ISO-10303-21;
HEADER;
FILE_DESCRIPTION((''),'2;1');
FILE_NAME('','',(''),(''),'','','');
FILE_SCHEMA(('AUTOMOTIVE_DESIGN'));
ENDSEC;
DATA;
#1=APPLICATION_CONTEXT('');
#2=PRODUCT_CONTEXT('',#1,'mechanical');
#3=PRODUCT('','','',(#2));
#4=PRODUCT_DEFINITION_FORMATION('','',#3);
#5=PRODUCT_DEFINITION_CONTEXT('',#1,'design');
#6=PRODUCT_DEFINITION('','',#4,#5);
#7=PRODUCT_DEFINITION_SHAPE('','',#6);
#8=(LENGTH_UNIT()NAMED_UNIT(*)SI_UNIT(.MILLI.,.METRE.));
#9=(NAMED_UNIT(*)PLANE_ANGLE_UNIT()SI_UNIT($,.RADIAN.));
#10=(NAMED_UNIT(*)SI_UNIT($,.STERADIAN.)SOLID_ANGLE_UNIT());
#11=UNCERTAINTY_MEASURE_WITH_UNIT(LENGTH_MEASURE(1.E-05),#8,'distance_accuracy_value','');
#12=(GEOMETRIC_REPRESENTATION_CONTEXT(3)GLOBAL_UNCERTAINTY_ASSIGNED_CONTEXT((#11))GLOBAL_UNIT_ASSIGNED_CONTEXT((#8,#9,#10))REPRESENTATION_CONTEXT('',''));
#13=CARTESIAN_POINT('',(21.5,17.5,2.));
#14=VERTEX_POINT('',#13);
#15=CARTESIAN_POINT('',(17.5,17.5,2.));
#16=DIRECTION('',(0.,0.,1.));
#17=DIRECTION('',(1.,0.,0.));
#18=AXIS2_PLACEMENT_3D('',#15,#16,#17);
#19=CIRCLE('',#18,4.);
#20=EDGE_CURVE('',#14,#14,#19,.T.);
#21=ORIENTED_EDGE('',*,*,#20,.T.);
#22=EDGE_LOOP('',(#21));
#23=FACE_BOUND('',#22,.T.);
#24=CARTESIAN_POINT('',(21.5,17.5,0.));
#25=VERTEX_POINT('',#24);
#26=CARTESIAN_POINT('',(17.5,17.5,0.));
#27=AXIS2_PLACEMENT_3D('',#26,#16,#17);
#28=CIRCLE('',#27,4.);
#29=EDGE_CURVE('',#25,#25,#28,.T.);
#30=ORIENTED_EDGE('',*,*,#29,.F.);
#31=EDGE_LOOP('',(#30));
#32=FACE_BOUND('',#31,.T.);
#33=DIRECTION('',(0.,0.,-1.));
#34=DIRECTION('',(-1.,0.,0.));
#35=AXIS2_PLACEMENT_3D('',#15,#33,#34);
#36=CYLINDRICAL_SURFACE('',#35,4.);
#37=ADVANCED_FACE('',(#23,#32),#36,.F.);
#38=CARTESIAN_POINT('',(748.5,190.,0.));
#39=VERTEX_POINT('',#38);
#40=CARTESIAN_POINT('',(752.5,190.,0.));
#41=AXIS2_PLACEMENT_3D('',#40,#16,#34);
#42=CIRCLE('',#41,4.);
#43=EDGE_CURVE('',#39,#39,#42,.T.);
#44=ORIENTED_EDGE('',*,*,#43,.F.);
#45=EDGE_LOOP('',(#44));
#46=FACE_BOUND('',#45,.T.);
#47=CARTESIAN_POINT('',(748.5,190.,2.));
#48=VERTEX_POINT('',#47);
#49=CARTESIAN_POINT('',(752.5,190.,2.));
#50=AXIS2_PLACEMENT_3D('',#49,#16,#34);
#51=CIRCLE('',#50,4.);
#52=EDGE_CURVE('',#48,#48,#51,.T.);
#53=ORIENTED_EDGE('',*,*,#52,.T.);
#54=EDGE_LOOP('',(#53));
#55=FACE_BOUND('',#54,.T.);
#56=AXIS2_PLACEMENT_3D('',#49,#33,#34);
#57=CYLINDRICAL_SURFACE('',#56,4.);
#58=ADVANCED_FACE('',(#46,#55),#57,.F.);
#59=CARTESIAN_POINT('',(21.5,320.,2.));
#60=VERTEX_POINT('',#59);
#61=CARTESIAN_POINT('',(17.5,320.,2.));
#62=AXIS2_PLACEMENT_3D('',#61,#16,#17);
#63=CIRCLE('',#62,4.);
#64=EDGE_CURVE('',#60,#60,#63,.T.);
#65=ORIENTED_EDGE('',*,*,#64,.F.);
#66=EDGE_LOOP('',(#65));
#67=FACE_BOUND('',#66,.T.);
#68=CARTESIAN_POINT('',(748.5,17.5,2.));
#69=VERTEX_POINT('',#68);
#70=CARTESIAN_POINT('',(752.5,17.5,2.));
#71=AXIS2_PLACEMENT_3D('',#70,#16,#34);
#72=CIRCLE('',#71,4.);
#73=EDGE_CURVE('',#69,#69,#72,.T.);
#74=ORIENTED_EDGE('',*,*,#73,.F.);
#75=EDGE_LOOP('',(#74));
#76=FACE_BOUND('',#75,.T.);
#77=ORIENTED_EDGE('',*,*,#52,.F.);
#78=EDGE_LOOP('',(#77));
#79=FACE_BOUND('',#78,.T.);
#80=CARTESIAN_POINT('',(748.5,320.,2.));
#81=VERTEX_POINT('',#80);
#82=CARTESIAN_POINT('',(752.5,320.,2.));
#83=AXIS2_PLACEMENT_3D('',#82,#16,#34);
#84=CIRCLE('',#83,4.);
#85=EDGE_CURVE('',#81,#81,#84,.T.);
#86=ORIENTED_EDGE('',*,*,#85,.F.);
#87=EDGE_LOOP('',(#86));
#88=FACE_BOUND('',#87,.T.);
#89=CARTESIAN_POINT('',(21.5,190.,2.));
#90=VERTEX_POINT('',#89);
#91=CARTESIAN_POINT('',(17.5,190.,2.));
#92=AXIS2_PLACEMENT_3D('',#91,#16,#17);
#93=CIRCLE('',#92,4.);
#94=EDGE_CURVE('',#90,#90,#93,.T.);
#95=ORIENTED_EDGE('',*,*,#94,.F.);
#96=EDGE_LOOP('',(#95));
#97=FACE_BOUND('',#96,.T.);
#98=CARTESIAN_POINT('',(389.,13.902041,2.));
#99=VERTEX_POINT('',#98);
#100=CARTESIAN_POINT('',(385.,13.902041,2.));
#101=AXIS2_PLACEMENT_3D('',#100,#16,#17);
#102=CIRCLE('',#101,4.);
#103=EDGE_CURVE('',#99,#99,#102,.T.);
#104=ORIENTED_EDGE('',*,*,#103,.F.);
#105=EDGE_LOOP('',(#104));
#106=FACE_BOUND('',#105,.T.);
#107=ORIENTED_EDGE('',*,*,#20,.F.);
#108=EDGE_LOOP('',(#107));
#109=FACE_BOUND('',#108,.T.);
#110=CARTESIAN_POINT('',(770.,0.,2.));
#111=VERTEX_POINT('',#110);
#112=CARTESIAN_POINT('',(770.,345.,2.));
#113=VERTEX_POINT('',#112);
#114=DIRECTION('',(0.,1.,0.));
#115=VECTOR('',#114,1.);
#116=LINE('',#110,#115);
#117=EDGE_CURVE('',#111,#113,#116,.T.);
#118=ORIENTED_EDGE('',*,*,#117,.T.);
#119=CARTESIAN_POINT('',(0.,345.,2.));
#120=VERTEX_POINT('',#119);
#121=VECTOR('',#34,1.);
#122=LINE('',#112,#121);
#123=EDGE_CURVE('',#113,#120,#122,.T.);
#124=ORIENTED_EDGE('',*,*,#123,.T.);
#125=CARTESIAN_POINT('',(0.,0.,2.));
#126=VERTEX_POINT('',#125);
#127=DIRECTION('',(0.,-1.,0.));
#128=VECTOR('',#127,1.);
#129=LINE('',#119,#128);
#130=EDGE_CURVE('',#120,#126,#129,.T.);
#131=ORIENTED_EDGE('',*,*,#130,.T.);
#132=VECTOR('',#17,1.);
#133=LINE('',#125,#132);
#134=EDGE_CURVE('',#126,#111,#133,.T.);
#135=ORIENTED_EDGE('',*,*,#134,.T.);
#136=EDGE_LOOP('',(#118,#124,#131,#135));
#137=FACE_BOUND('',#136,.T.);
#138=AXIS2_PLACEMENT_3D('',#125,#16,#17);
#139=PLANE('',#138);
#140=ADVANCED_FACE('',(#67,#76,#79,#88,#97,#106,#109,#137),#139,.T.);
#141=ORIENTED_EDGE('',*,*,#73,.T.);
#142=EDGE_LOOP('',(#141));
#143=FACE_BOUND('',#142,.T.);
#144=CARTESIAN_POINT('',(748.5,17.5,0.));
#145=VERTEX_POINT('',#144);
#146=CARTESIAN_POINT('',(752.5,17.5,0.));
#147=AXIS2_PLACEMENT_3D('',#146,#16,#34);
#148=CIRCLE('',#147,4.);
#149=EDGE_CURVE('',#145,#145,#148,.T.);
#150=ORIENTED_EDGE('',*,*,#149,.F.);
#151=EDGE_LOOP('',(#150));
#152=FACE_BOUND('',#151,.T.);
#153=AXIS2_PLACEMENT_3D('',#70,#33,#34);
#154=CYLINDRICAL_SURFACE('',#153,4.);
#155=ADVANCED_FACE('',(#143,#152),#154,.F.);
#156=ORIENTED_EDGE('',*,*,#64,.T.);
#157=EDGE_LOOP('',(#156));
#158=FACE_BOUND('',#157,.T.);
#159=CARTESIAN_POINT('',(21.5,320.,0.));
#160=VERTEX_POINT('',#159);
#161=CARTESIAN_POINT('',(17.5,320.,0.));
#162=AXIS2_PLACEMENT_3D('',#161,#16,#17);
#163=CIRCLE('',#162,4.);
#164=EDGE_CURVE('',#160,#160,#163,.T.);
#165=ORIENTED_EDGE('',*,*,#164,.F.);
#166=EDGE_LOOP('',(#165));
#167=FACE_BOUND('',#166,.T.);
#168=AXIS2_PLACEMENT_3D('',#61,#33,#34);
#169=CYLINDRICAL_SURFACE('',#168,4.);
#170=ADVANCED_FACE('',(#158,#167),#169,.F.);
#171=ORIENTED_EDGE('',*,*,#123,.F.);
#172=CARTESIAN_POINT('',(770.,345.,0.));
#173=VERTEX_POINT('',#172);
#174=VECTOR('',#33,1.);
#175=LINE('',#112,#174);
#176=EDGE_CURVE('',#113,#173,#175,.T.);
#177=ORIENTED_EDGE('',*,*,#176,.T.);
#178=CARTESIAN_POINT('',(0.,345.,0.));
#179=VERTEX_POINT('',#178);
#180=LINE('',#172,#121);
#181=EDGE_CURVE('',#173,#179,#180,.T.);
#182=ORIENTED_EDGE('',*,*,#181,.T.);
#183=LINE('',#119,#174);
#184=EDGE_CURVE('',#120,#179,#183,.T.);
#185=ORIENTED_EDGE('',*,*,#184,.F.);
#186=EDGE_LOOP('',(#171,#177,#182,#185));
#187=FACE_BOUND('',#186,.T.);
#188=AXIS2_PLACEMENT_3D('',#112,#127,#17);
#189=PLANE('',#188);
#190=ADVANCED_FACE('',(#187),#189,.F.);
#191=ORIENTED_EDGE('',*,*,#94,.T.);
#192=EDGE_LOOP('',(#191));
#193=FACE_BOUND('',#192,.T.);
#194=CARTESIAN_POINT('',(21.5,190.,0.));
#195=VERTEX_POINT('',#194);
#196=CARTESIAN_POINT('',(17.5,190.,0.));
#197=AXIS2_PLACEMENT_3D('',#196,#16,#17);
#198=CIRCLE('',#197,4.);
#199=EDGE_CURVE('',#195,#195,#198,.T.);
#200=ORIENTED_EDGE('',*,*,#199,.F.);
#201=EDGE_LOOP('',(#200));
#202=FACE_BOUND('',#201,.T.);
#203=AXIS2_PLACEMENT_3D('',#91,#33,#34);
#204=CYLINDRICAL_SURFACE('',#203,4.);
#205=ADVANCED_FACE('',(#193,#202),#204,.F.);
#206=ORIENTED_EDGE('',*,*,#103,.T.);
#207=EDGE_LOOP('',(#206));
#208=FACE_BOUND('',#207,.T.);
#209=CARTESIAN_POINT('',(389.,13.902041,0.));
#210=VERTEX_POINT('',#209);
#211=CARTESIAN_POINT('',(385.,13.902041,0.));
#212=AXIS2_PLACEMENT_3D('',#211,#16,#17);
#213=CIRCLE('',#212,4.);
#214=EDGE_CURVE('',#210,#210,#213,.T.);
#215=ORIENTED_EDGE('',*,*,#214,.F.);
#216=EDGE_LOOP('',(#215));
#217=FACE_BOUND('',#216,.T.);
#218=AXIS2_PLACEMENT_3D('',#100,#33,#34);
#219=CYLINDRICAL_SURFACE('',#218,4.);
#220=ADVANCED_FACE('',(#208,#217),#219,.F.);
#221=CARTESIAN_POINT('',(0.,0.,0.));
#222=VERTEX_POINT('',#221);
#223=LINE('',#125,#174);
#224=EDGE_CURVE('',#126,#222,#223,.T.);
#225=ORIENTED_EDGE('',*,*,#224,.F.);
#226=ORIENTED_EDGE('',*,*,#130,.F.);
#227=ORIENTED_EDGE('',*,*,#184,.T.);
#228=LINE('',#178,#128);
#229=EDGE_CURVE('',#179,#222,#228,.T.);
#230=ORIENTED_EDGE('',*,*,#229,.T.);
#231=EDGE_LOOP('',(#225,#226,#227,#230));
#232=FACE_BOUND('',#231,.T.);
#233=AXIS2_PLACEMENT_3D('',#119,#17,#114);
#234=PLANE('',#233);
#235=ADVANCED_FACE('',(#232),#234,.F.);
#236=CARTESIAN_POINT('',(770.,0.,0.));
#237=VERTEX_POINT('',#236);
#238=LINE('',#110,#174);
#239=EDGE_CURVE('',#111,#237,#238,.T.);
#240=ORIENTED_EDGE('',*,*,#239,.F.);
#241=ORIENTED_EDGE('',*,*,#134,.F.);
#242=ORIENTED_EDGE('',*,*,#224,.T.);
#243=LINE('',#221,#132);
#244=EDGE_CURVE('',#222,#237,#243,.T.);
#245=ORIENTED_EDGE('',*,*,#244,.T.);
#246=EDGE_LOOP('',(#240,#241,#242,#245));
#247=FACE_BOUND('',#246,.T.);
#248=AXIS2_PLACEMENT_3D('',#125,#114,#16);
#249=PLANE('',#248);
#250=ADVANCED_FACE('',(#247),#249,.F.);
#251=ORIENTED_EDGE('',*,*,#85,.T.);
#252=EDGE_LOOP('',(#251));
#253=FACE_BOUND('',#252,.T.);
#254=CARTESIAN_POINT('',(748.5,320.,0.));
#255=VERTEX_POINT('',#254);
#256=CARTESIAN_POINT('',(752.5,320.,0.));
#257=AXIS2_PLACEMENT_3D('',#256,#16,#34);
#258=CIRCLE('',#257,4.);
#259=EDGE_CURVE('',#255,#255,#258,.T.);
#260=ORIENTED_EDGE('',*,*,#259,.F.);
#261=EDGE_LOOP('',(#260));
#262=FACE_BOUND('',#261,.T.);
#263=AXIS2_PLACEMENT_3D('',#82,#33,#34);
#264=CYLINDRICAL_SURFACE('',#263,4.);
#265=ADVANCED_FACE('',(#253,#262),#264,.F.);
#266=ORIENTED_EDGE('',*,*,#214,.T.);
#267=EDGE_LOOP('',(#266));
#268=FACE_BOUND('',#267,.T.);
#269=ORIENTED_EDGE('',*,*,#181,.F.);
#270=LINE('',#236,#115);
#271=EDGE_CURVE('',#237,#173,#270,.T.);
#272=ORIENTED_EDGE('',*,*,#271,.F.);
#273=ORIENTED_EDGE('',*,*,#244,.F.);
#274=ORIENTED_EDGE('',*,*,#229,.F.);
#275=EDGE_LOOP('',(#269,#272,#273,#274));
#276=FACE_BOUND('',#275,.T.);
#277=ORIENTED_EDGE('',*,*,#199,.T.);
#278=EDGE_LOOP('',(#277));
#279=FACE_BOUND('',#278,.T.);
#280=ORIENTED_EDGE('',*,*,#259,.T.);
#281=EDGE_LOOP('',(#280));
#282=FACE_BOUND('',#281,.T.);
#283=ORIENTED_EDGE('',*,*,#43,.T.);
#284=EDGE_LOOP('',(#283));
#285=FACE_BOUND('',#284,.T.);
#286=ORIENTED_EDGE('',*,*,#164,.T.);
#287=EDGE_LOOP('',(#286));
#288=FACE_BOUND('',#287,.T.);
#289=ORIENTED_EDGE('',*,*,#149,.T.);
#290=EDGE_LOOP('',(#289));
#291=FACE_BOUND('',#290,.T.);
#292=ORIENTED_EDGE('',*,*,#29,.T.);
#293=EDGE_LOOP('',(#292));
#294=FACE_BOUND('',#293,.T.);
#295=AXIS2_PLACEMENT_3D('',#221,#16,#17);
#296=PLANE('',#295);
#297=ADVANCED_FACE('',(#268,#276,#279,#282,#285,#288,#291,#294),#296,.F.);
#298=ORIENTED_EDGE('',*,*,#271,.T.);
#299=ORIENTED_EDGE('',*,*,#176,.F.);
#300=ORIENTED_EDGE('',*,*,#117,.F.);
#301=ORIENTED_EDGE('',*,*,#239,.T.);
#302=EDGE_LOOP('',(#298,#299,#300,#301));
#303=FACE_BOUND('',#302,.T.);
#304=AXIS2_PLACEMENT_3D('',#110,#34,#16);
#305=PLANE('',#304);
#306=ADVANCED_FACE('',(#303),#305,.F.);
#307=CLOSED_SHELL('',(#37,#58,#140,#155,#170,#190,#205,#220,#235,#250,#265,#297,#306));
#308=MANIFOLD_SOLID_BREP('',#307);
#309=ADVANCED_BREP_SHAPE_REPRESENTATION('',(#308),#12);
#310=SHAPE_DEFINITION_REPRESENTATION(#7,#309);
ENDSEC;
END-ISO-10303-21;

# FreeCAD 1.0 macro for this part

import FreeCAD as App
import Part
import Sketcher

doc = App.newDocument("Part")
body = doc.addObject("PartDesign::Body", "Body")

sketch1 = doc.addObject("Sketcher::SketchObject", "Sketch")
body.addObject(sketch1)
sketch1.AttachmentSupport = (doc.XY_Plane, [""])
sketch1.MapMode = "FlatFace"
sketch1.addGeometry([
    Part.LineSegment(App.Vector(0, 345, 0), App.Vector(0, 0, 0)),
    Part.LineSegment(App.Vector(0, 0, 0), App.Vector(770, 0, 0)),
    Part.LineSegment(App.Vector(770, 0, 0), App.Vector(770, 345, 0)),
    Part.LineSegment(App.Vector(770, 345, 0), App.Vector(0, 345, 0)),
    Part.Circle(App.Vector(17.5, 17.5, 0), App.Vector(0, 0, 1), 4),
    Part.Circle(App.Vector(385, 13.9, 0), App.Vector(0, 0, 1), 4),
    Part.Circle(App.Vector(752.5, 17.5, 0), App.Vector(0, 0, 1), 4),
    Part.Circle(App.Vector(17.5, 190, 0), App.Vector(0, 0, 1), 4),
    Part.Circle(App.Vector(17.5, 320, 0), App.Vector(0, 0, 1), 4),
    Part.Circle(App.Vector(752.5, 190, 0), App.Vector(0, 0, 1), 4),
    Part.Circle(App.Vector(752.5, 320, 0), App.Vector(0, 0, 1), 4),
], False)
sketch1.addConstraint([
    Sketcher.Constraint("Coincident", 0, 2, 1, 1),
    Sketcher.Constraint("Coincident", 1, 2, 2, 1),
    Sketcher.Constraint("Coincident", 2, 2, 3, 1),
    Sketcher.Constraint("Coincident", 3, 2, 0, 1),
    Sketcher.Constraint("Vertical", 0),
    Sketcher.Constraint("Horizontal", 1),
    Sketcher.Constraint("Vertical", 2),
    Sketcher.Constraint("Horizontal", 3),
    Sketcher.Constraint("Coincident", 0, 2, -1, 1),
    Sketcher.Constraint("Equal", 4, 5),
    Sketcher.Constraint("Equal", 5, 6),
    Sketcher.Constraint("Equal", 6, 7),
    Sketcher.Constraint("Equal", 7, 8),
    Sketcher.Constraint("Equal", 8, 9),
    Sketcher.Constraint("Equal", 9, 10),
    Sketcher.Constraint("Horizontal", 4, 3, 6, 3),
    Sketcher.Constraint("Horizontal", 7, 3, 9, 3),
    Sketcher.Constraint("Horizontal", 8, 3, 10, 3),
    Sketcher.Constraint("Vertical", 4, 3, 7, 3),
    Sketcher.Constraint("Vertical", 7, 3, 8, 3),
    Sketcher.Constraint("Vertical", 6, 3, 9, 3),
    Sketcher.Constraint("Vertical", 9, 3, 10, 3),
    Sketcher.Constraint("Diameter", 4, 8.0),
    Sketcher.Constraint("DistanceX", 1, 1, 1, 2, 770.0),
    Sketcher.Constraint("DistanceY", 0, 2, 0, 1, 345.0),
    Sketcher.Constraint("DistanceX", -1, 1, 5, 3, 385.0),
    Sketcher.Constraint("DistanceY", -1, 1, 7, 3, 190.0),
    Sketcher.Constraint("DistanceY", -1, 1, 8, 3, 320.0),
    Sketcher.Constraint("DistanceX", 4, 3, 6, 3, 735.0),
    Sketcher.Constraint("DistanceX", -1, 1, 4, 3, 17.5),
    Sketcher.Constraint("DistanceY", -1, 1, 4, 3, 17.5),
    Sketcher.Constraint("DistanceY", -1, 1, 5, 3, 13.902041),
])
pad1 = doc.addObject("PartDesign::Pad", "Pad")
body.addObject(pad1)
pad1.Profile = sketch1
pad1.Length = 2

doc.recompute()
